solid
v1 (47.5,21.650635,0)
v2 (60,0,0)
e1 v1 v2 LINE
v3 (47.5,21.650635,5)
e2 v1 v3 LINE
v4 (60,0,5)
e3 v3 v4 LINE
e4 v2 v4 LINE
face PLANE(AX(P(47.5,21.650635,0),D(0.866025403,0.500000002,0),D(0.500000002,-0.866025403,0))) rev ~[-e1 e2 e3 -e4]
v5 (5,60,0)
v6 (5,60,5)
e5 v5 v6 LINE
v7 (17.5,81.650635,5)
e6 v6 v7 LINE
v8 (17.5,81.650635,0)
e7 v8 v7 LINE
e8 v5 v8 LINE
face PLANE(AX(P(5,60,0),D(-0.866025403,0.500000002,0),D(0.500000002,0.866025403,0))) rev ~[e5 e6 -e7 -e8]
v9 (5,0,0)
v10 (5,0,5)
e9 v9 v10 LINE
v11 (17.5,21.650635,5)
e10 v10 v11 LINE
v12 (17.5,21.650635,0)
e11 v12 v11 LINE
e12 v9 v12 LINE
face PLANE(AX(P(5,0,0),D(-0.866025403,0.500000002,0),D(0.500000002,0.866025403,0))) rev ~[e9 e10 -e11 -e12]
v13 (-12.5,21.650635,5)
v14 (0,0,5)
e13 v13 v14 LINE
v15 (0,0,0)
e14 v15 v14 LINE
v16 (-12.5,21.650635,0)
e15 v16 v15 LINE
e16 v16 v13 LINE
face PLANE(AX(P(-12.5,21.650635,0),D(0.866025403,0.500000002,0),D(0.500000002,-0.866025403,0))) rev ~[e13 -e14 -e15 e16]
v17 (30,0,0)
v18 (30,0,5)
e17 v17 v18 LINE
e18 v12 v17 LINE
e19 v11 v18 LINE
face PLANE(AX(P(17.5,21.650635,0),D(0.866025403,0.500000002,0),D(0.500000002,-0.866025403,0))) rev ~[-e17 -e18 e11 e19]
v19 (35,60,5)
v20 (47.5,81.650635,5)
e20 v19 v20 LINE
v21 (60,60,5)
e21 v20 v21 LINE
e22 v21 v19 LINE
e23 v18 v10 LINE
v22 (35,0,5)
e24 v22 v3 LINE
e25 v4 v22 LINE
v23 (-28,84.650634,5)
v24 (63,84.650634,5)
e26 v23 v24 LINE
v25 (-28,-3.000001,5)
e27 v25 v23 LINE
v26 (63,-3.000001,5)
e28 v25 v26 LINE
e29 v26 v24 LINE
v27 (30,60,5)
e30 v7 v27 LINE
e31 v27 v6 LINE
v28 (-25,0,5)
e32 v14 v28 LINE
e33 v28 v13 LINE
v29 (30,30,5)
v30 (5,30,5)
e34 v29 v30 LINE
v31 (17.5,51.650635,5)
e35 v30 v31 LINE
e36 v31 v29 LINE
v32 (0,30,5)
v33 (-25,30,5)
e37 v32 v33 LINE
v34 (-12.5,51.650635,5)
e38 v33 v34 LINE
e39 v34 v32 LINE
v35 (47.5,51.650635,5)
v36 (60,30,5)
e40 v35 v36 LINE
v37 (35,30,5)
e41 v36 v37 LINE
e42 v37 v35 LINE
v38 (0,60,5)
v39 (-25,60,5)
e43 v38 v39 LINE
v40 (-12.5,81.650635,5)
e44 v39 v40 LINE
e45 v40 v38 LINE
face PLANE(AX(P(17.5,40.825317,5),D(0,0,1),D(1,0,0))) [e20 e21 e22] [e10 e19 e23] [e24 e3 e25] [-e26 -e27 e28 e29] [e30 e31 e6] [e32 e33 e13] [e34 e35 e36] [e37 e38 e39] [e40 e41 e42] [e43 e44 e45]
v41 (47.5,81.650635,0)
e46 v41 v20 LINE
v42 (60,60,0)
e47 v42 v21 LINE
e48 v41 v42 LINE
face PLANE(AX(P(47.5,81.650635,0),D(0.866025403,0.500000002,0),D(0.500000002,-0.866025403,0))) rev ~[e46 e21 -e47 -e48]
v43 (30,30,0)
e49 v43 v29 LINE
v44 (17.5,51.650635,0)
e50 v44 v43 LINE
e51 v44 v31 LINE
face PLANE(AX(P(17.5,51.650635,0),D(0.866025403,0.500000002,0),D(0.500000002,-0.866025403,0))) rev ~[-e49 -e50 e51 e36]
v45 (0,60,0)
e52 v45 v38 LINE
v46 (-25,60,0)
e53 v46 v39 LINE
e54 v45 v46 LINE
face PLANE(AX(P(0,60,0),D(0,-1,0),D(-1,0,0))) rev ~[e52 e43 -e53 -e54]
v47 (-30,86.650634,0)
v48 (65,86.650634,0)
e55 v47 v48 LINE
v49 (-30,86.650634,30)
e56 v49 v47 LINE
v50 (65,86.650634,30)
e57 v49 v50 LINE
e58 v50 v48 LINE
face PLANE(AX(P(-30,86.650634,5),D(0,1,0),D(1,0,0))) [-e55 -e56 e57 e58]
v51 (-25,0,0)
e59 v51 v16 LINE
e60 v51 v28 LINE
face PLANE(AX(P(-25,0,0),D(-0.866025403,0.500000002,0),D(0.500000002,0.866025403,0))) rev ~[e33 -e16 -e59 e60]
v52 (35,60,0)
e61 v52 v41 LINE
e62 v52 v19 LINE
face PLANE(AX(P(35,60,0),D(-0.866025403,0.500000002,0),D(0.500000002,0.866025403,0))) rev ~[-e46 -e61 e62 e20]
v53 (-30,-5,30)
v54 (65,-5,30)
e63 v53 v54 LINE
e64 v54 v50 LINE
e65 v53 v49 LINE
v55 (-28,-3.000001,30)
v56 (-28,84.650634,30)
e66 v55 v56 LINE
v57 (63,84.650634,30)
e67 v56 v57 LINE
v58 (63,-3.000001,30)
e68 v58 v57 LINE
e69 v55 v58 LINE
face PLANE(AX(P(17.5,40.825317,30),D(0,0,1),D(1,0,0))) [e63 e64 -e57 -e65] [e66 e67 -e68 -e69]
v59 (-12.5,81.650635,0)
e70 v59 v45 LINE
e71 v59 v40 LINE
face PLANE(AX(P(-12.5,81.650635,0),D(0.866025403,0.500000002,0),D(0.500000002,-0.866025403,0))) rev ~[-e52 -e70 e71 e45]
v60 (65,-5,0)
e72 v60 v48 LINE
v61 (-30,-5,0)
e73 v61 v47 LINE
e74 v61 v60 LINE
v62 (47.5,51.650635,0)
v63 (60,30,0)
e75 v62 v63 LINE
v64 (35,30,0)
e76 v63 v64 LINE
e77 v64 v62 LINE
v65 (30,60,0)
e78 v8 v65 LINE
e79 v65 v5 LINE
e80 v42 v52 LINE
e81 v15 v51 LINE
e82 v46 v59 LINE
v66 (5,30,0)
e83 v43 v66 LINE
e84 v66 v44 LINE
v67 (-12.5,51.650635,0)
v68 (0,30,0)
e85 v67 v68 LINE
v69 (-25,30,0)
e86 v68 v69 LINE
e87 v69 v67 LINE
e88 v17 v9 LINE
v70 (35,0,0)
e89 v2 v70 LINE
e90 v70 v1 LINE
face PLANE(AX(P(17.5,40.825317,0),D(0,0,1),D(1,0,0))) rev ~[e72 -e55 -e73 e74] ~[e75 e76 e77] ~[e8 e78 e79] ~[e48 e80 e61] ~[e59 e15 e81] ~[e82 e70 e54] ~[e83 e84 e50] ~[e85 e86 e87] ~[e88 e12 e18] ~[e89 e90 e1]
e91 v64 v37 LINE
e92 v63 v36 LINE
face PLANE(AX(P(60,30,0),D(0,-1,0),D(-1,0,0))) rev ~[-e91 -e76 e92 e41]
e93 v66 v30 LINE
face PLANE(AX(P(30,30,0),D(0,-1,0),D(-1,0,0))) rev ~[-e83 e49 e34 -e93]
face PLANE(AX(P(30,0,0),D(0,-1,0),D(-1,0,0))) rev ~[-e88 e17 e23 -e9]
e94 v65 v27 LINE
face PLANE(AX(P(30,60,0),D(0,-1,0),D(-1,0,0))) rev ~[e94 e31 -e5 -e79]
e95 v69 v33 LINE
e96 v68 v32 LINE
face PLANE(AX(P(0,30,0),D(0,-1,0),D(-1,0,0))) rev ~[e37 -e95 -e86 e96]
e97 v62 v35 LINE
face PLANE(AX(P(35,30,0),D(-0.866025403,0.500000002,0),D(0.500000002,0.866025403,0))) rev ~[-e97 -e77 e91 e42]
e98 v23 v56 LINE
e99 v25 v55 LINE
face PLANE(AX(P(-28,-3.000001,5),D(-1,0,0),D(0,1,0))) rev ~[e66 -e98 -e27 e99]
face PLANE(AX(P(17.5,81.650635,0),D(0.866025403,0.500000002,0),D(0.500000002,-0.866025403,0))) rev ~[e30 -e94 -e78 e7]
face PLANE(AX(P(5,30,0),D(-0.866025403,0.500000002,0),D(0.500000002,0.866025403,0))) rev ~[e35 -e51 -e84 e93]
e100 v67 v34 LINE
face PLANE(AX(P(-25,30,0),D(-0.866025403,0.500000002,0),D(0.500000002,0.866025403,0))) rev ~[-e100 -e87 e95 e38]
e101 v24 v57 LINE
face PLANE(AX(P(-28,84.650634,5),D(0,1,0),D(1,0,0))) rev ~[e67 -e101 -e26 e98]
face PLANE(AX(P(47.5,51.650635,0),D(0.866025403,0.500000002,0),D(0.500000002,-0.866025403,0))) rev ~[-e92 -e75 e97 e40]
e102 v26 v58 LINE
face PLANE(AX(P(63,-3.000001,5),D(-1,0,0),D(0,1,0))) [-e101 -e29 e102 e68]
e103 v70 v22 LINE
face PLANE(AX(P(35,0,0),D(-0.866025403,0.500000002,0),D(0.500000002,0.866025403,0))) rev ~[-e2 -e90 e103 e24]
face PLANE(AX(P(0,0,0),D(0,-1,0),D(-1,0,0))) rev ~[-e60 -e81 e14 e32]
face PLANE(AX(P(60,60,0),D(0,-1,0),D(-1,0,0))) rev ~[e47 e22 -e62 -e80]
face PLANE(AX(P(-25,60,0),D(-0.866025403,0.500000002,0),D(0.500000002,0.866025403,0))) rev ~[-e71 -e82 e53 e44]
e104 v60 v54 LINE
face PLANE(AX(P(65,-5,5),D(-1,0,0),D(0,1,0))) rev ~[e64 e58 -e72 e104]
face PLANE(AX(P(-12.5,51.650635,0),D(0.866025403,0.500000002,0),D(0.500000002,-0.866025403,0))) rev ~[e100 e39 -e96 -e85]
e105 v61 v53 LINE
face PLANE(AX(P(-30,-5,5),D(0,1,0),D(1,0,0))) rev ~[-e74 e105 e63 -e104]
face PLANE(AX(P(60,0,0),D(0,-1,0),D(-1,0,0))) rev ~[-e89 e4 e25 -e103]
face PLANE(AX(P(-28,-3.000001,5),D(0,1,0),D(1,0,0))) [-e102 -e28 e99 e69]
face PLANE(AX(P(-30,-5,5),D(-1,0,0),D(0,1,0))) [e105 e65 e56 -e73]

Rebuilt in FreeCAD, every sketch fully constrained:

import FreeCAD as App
import Part
import Sketcher
from FreeCAD import Vector
Q = App.Units.Quantity


def add_polygon(sketch, points):
    """Adds a closed chain of lines whose ends are joined by coincident constraints."""
    first, n = sketch.GeometryCount, len(points)
    for a, b in zip(points, points[1:] + points[:1]):
        sketch.addGeometry(Part.LineSegment(App.Vector(*a, 0), App.Vector(*b, 0)), False)
    for i in range(n):
        sketch.addConstraint(Sketcher.Constraint("Coincident", first + i, 2, first + (i + 1) % n, 1))

doc = App.newDocument("Part")
body = doc.addObject("PartDesign::Body", "Body")

# Sketch on XY plane
sketch1 = body.newObject("Sketcher::SketchObject", "Sketch")
sketch1.AttachmentSupport = (doc.getObject("XY_Plane"), [""])
sketch1.MapMode = "FlatFace"
add_polygon(sketch1, [(-30, 86.650634), (-30, -5), (65, -5), (65, 86.650634)])  # lines 0-3
add_polygon(sketch1, [(0, 0), (-25, 0), (-12.5, 21.650635)])  # lines 4-6
add_polygon(sketch1, [(17.5, 21.650635), (30, 0), (5, 0)])  # lines 7-9
add_polygon(sketch1, [(47.5, 21.650635), (60, 0), (35, 0)])  # lines 10-12
add_polygon(sketch1, [(-12.5, 51.650635), (0, 30), (-25, 30)])  # lines 13-15
add_polygon(sketch1, [(-12.5, 81.650635), (0, 60), (-25, 60)])  # lines 16-18
add_polygon(sketch1, [(17.5, 51.650635), (30, 30), (5, 30)])  # lines 19-21
add_polygon(sketch1, [(47.5, 51.650635), (60, 30), (35, 30)])  # lines 22-24
add_polygon(sketch1, [(17.5, 81.650635), (30, 60), (5, 60)])  # lines 25-27
add_polygon(sketch1, [(47.5, 81.650635), (60, 60), (35, 60)])  # lines 28-30
sketch1.addConstraint([
    Sketcher.Constraint("Vertical", 0),
    Sketcher.Constraint("Horizontal", 1),
    Sketcher.Constraint("Vertical", 2),
    Sketcher.Constraint("Horizontal", 3),
    Sketcher.Constraint("Horizontal", 4),
    Sketcher.Constraint("Horizontal", 8),
    Sketcher.Constraint("Horizontal", 11),
    Sketcher.Constraint("Horizontal", 14),
    Sketcher.Constraint("Horizontal", 17),
    Sketcher.Constraint("Horizontal", 20),
    Sketcher.Constraint("Horizontal", 23),
    Sketcher.Constraint("Horizontal", 26),
    Sketcher.Constraint("Horizontal", 29),
    Sketcher.Constraint("Coincident", 6, 2, -1, 1),
    Sketcher.Constraint("PointOnObject", 7, 2, -1),
    Sketcher.Constraint("PointOnObject", 10, 2, -1),
    Sketcher.Constraint("PointOnObject", 13, 2, -2),
    Sketcher.Constraint("PointOnObject", 16, 2, -2),
    Sketcher.Constraint("Parallel", 6, 7),
    Sketcher.Constraint("Parallel", 5, 9),
    Sketcher.Constraint("Parallel", 7, 10),
    Sketcher.Constraint("Parallel", 9, 12),
    Sketcher.Constraint("Parallel", 10, 13),
    Sketcher.Constraint("Parallel", 12, 15),
    Sketcher.Constraint("Parallel", 13, 16),
    Sketcher.Constraint("Parallel", 15, 18),
    Sketcher.Constraint("Parallel", 16, 19),
    Sketcher.Constraint("Parallel", 18, 21),
    Sketcher.Constraint("Parallel", 19, 22),
    Sketcher.Constraint("Parallel", 21, 24),
    Sketcher.Constraint("Parallel", 22, 25),
    Sketcher.Constraint("Parallel", 24, 27),
    Sketcher.Constraint("Parallel", 25, 28),
    Sketcher.Constraint("Parallel", 27, 30),
    Sketcher.Constraint("Horizontal", 5, 2, 9, 2),
    Sketcher.Constraint("Horizontal", 9, 2, 12, 2),
    Sketcher.Constraint("Horizontal", 14, 2, 19, 2),
    Sketcher.Constraint("Horizontal", 15, 2, 21, 2),
    Sketcher.Constraint("Horizontal", 20, 2, 22, 2),
    Sketcher.Constraint("Horizontal", 21, 2, 24, 2),
    Sketcher.Constraint("Horizontal", 17, 2, 25, 2),
    Sketcher.Constraint("Horizontal", 18, 2, 27, 2),
    Sketcher.Constraint("Horizontal", 26, 2, 28, 2),
    Sketcher.Constraint("Horizontal", 27, 2, 30, 2),
    Sketcher.Constraint("Vertical", 4, 2, 14, 2),
    Sketcher.Constraint("Vertical", 14, 2, 17, 2),
    Sketcher.Constraint("Vertical", 7, 2, 19, 2),
    Sketcher.Constraint("Vertical", 10, 2, 22, 2),
    Sketcher.Constraint("Vertical", 19, 2, 25, 2),
    Sketcher.Constraint("Vertical", 22, 2, 28, 2),
    Sketcher.Constraint("Equal", 5, 6),
    Sketcher.Constraint("DistanceX", 1, 1, 1, 2, Q("95 mm")),
    Sketcher.Constraint("DistanceX", 4, 2, 4, 1, Q("25 mm")),
    Sketcher.Constraint("Angle", 5, Q("60 deg")),
    Sketcher.Constraint("DistanceX", 0, 2, -1, 1, Q("30 mm")),
    Sketcher.Constraint("DistanceY", 0, 2, -1, 1, Q("5 mm")),
    Sketcher.Constraint("DistanceX", -1, 1, 7, 2, Q("30 mm")),
    Sketcher.Constraint("DistanceX", -1, 1, 10, 2, Q("60 mm")),
    Sketcher.Constraint("DistanceY", -1, 1, 13, 2, Q("30 mm")),
    Sketcher.Constraint("DistanceY", -1, 1, 16, 2, Q("60 mm")),
    Sketcher.Constraint("DistanceY", 5, 2, 3, 2, Q("65 mm")),
])
pad1 = body.newObject("PartDesign::Pad", "Pad")
pad1.Profile = sketch1
pad1.Length = 5

# Sketch on XY plane
sketch2 = body.newObject("Sketcher::SketchObject", "Sketch001")
sketch2.AttachmentSupport = (doc.getObject("XY_Plane"), [""])
sketch2.MapMode = "FlatFace"
sketch2.AttachmentOffset = App.Placement(Vector(0, 0, 5), App.Rotation())
add_polygon(sketch2, [(-30, 86.650634), (-30, -5), (65, -5), (65, 86.650634)])  # lines 0-3
add_polygon(sketch2, [(63, -3.000001), (-28, -3.000001), (-28, 84.650634), (63, 84.650634)])  # lines 4-7
sketch2.addConstraint([
    Sketcher.Constraint("Vertical", 0),
    Sketcher.Constraint("Horizontal", 1),
    Sketcher.Constraint("Vertical", 2),
    Sketcher.Constraint("Horizontal", 3),
    Sketcher.Constraint("Horizontal", 4),
    Sketcher.Constraint("Vertical", 5),
    Sketcher.Constraint("Horizontal", 6),
    Sketcher.Constraint("Vertical", 7),
    Sketcher.Constraint("DistanceX", 1, 1, 1, 2, Q("95 mm")),
    Sketcher.Constraint("DistanceX", 4, 2, 4, 1, Q("91 mm")),
    Sketcher.Constraint("DistanceX", 0, 2, -1, 1, Q("30 mm")),
    Sketcher.Constraint("DistanceY", 0, 2, -1, 1, Q("5 mm")),
    Sketcher.Constraint("DistanceX", 4, 2, -1, 1, Q("28 mm")),
    Sketcher.Constraint("DistanceY", 4, 2, -1, 1, Q("3.000001 mm")),
    Sketcher.Constraint("DistanceY", 5, 2, 3, 2, Q("2 mm")),
    Sketcher.Constraint("DistanceY", 0, 2, 0, 1, Q("91.650635 mm")),
])
pad2 = body.newObject("PartDesign::Pad", "Pad001")
pad2.Profile = sketch2
pad2.Length = 25

doc.recompute()
